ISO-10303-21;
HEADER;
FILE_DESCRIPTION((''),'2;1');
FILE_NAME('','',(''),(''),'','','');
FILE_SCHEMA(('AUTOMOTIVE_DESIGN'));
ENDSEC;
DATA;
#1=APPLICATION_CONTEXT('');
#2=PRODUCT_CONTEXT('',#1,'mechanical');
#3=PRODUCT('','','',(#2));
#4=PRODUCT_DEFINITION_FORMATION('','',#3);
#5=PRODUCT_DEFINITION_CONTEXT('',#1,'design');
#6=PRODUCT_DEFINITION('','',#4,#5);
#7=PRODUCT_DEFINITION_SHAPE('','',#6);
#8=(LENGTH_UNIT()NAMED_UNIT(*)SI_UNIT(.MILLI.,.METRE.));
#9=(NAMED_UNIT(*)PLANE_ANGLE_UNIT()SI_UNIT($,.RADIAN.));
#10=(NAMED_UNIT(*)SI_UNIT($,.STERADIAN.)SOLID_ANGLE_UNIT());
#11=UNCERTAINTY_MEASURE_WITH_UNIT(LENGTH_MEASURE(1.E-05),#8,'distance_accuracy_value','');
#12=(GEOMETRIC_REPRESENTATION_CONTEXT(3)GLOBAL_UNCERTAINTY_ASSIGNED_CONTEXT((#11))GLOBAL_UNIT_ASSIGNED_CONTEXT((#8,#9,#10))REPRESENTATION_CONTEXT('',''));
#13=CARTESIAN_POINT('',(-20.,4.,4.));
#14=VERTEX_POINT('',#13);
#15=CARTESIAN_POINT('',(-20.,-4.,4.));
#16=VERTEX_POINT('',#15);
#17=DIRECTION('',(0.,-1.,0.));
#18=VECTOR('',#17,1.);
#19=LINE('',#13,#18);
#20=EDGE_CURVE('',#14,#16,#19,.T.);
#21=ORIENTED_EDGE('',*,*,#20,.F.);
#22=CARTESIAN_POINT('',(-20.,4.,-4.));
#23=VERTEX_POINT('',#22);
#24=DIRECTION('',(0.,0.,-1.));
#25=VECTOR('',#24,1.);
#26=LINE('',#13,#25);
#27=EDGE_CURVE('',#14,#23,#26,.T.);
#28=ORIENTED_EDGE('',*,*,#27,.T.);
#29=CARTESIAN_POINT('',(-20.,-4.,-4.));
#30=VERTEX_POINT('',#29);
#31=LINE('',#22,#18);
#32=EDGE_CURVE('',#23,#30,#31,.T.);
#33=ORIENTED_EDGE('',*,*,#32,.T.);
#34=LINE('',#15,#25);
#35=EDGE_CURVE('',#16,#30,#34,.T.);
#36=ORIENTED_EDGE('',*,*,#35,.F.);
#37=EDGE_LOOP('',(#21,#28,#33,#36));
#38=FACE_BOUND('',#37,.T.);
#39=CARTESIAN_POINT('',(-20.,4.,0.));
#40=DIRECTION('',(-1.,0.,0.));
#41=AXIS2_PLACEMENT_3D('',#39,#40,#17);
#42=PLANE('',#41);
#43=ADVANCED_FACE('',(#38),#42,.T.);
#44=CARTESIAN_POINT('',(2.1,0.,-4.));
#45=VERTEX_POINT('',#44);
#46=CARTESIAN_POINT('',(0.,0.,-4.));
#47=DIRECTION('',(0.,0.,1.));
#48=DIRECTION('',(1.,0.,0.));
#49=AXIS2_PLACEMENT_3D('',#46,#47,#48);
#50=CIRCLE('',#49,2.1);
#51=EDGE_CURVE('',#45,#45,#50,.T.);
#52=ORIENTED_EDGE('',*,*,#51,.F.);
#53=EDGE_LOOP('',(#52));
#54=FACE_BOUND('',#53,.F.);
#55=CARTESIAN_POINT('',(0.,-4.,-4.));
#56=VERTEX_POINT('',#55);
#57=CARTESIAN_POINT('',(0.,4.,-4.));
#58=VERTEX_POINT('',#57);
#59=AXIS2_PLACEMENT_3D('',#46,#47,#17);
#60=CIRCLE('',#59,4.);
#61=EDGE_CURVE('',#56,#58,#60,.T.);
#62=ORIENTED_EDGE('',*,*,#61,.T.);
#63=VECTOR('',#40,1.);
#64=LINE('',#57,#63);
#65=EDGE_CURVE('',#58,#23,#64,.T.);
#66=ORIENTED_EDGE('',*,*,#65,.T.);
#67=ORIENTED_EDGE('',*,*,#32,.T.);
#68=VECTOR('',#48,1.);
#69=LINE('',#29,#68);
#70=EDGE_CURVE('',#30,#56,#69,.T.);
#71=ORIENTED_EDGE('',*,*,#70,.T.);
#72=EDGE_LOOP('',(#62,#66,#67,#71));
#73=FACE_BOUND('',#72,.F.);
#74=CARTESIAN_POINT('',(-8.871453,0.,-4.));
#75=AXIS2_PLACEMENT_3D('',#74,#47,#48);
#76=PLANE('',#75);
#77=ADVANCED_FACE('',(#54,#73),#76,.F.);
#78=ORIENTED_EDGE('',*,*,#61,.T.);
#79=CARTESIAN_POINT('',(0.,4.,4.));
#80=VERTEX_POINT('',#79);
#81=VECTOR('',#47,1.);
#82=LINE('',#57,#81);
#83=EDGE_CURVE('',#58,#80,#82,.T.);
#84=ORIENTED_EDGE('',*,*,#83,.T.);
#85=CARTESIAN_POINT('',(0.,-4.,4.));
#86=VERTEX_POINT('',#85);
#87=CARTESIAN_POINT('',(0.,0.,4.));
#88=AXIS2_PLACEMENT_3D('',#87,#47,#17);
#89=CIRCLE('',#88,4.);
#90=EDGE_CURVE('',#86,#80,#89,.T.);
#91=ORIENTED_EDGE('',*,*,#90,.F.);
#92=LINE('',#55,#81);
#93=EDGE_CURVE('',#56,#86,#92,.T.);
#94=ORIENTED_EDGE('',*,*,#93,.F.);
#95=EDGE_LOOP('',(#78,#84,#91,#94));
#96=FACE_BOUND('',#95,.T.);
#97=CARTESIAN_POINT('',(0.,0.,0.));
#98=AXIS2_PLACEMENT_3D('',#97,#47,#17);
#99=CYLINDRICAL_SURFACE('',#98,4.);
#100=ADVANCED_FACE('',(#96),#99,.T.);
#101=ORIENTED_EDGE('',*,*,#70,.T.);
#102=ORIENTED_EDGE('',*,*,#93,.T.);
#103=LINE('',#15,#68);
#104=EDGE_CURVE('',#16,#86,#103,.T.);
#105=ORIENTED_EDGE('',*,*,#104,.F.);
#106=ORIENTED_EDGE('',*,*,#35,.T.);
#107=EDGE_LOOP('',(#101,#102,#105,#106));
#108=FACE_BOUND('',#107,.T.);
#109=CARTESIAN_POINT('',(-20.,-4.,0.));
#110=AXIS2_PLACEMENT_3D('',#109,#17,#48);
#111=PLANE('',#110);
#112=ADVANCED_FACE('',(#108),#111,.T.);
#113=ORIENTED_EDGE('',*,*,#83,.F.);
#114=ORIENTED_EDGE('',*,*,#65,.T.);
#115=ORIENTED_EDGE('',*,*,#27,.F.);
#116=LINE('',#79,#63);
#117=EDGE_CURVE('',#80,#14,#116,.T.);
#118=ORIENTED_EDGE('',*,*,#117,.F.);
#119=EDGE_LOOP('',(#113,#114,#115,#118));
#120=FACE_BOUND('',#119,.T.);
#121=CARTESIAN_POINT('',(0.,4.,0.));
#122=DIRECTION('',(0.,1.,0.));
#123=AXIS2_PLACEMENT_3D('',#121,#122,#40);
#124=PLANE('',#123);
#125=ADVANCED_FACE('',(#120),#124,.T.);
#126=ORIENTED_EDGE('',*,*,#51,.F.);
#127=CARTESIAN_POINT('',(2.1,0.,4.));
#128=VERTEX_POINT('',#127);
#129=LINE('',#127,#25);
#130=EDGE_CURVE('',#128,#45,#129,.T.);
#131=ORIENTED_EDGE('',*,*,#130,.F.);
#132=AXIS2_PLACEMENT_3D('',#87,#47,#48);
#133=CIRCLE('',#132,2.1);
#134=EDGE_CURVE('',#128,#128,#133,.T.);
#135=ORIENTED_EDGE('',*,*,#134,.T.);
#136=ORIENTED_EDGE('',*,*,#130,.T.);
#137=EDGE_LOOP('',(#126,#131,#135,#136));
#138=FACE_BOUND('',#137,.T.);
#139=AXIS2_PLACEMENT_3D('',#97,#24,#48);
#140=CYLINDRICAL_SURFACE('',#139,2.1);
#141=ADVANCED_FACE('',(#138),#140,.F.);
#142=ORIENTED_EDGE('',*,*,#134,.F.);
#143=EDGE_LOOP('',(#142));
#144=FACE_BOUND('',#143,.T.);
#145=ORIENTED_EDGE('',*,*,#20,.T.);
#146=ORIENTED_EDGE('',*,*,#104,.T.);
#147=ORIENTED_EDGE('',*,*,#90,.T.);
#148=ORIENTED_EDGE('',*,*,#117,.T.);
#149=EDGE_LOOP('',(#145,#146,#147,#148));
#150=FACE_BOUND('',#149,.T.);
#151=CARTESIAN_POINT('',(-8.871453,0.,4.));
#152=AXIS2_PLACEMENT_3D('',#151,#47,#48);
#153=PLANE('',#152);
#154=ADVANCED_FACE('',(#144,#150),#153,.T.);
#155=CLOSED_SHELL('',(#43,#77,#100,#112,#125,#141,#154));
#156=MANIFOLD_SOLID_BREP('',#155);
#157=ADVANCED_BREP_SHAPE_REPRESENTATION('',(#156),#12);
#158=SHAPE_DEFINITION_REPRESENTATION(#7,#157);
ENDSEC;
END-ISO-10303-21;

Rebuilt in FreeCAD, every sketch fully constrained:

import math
import FreeCAD as App
import Part
import Sketcher
from FreeCAD import Vector

doc = App.newDocument("Part")
params = doc.addObject("Spreadsheet::Sheet", "Params")
for row, (alias, value) in enumerate([
    ("sketch1_radius", "4 mm"),
    ("sketch1_diameter", "4.2 mm"),
    ("sketch1_width", "20 mm"),
    ("pad1_length", "8 mm"),
], start=1):
    params.set(f"A{row}", alias)
    params.set(f"B{row}", "=" + value)
    params.setAlias(f"B{row}", alias)

body = doc.addObject("PartDesign::Body", "Body")

sketch1 = body.newObject("Sketcher::SketchObject", "Sketch")
sketch1.AttachmentSupport = (doc.getObject("XY_Plane"), [""])
sketch1.MapMode = "FlatFace"
sketch1.addGeometry(Part.LineSegment(Vector(-20, -4, 0), Vector(0, -4, 0)), False)
sketch1.addGeometry(Part.ArcOfCircle(Part.Circle(Vector(0, 0, 0), Vector(0, 0, 1), 4), math.radians(-90), math.radians(90)), False)
sketch1.addGeometry(Part.LineSegment(Vector(0, 4, 0), Vector(-20, 4, 0)), False)
sketch1.addGeometry(Part.LineSegment(Vector(-20, 4, 0), Vector(-20, -4, 0)), False)
sketch1.addGeometry(Part.Circle(Vector(0, 0, 0), Vector(0, 0, 1), 2.1), False)
sketch1.addConstraint(Sketcher.Constraint("Tangent", 0, 2, 1, 1))
sketch1.addConstraint(Sketcher.Constraint("Tangent", 1, 2, 2, 1))
sketch1.addConstraint(Sketcher.Constraint("Coincident", 2, 2, 3, 1))
sketch1.addConstraint(Sketcher.Constraint("Coincident", 3, 2, 0, 1))
sketch1.addConstraint(Sketcher.Constraint("Horizontal", 0))
sketch1.addConstraint(Sketcher.Constraint("Horizontal", 2))
sketch1.addConstraint(Sketcher.Constraint("Vertical", 3))
sketch1.addConstraint(Sketcher.Constraint("Coincident", 1, 3, -1, 1))
sketch1.addConstraint(Sketcher.Constraint("Coincident", 4, 3, -1, 1))
sketch1.addConstraint(Sketcher.Constraint("Radius", 1, 4.0))
sketch1.addConstraint(Sketcher.Constraint("Diameter", 4, 4.2))
sketch1.addConstraint(Sketcher.Constraint("DistanceX", 0, 1, 0, 2, 20.0))
sketch1.setExpression("Constraints[9]", "Params.sketch1_radius")
sketch1.setExpression("Constraints[10]", "Params.sketch1_diameter")
sketch1.setExpression("Constraints[11]", "Params.sketch1_width")
pad1 = body.newObject("PartDesign::Pad", "Pad")
pad1.Profile = sketch1
pad1.setExpression("Length", "Params.pad1_length")
pad1.Midplane = True

doc.recompute()
